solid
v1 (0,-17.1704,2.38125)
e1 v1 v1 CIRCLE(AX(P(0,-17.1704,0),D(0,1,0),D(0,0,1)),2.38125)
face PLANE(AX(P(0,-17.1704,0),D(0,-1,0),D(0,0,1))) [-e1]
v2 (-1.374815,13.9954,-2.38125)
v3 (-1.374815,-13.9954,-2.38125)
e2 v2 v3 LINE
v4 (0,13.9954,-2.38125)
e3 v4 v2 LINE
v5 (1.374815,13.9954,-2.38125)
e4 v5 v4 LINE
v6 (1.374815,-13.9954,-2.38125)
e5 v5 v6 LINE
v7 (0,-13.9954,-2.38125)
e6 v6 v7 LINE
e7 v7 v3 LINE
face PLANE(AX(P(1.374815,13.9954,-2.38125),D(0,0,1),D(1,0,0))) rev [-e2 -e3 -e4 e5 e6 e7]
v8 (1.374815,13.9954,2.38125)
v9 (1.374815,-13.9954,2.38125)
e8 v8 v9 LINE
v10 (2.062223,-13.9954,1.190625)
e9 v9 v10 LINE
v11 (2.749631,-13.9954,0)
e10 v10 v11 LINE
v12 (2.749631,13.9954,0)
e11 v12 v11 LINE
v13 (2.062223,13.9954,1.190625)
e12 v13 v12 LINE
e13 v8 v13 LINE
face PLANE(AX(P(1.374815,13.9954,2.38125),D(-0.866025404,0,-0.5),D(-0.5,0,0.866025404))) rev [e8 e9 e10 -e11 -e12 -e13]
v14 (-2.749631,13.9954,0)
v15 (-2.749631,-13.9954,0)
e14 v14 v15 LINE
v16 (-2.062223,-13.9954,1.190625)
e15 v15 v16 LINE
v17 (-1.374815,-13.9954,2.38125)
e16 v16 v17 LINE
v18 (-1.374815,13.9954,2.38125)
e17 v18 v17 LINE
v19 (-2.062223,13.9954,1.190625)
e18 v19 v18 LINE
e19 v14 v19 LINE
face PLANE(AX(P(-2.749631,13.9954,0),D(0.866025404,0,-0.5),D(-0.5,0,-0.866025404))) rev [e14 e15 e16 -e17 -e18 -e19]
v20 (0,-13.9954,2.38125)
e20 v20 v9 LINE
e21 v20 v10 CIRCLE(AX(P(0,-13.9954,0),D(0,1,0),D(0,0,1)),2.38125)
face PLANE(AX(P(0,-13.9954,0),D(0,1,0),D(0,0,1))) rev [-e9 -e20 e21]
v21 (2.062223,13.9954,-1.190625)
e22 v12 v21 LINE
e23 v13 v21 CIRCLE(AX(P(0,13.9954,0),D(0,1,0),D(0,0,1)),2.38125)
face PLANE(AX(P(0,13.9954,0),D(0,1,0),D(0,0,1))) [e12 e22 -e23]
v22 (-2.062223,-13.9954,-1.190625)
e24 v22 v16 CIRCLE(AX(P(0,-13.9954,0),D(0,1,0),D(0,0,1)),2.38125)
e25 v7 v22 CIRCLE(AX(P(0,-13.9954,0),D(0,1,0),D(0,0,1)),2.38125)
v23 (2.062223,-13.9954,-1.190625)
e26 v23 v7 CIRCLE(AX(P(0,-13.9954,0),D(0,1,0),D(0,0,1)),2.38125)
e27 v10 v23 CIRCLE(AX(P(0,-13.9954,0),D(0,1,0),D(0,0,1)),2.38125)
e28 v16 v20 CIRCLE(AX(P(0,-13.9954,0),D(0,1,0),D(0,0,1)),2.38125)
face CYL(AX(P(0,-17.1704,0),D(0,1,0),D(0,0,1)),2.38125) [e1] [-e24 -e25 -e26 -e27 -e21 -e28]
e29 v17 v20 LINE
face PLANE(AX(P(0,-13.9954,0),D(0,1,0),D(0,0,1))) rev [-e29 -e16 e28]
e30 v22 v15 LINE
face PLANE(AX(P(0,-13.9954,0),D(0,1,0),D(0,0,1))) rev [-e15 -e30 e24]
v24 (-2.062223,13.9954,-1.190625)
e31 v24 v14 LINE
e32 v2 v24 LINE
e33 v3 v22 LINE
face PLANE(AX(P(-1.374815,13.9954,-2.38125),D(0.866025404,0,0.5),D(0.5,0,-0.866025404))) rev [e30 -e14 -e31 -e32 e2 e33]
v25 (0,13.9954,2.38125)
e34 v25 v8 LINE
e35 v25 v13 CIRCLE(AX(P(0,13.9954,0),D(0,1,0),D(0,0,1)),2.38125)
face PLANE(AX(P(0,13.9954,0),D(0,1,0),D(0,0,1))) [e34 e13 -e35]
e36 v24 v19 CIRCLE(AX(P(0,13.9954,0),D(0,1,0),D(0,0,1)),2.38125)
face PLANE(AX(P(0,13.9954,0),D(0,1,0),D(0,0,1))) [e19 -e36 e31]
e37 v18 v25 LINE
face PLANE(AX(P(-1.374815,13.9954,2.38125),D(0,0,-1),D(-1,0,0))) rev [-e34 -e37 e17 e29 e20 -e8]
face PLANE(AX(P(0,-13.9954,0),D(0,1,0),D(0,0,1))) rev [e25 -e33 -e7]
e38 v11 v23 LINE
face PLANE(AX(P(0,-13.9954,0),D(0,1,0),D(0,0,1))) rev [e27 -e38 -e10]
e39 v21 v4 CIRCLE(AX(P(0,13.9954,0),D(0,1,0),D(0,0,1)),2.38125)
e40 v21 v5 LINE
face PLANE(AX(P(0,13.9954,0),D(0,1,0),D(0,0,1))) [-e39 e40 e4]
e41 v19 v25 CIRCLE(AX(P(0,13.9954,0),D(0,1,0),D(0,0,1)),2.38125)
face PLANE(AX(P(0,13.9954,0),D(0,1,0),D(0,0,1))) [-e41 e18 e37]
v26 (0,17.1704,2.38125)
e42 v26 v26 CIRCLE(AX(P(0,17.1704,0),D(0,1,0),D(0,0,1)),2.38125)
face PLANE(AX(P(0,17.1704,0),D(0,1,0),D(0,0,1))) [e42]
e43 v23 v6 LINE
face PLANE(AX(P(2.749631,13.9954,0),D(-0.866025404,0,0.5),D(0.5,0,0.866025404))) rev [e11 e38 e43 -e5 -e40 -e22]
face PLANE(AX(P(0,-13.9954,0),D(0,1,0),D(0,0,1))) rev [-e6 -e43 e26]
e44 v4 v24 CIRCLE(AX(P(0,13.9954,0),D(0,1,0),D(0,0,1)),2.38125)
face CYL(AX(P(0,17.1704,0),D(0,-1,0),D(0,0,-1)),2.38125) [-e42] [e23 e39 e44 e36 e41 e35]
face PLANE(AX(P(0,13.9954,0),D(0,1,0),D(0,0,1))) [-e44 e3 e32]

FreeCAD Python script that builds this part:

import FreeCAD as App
import Part
import Sketcher

V = App.Vector
Q = App.Units.Quantity


def add_polygon(sketch, points):
    """Adds a closed chain of lines whose ends are joined by coincident constraints."""
    first, n = sketch.GeometryCount, len(points)
    for a, b in zip(points, points[1:] + points[:1]):
        sketch.addGeometry(Part.LineSegment(App.Vector(*a, 0), App.Vector(*b, 0)), False)
    for i in range(n):
        sketch.addConstraint(Sketcher.Constraint("Coincident", first + i, 2, first + (i + 1) % n, 1))

doc = App.newDocument("Part")
body = doc.addObject("PartDesign::Body", "Body")

# Sketch on XZ plane
sketch1 = body.newObject("Sketcher::SketchObject", "Sketch")
sketch1.AttachmentSupport = (doc.getObject("XZ_Plane"), [""])
sketch1.MapMode = "FlatFace"
add_polygon(sketch1, [(1.4, 2.4), (2.7, 0), (1.4, -2.4), (-1.4, -2.4), (-2.7, 0), (-1.4, 2.4)])  # lines 0-5
sketch1.addConstraint([
    Sketcher.Constraint("Horizontal", 2),
    Sketcher.Constraint("Horizontal", 5),
    Sketcher.Constraint("Symmetric", 0, 2, 3, 2, -1, 1),
    Sketcher.Constraint("Symmetric", 1, 2, 4, 2, -1, 1),
    Sketcher.Constraint("PointOnObject", 0, 2, -1),
    Sketcher.Constraint("Parallel", 0, 3),
    Sketcher.Constraint("Vertical", 2, 2, 4, 2),
    Sketcher.Constraint("Angle", 0, Q("-60 deg")),
    Sketcher.Constraint("DistanceY", 1, 2, -1, 1, Q("0.09375 in")),
    Sketcher.Constraint("DistanceX", 2, 2, 2, 1, 2.749631),
])
pad1 = body.newObject("PartDesign::Pad", "Pad")
pad1.Profile = sketch1
pad1.Length = Q("1.102 in")
pad1.Midplane = True

# Sketch on XZ plane
sketch2 = body.newObject("Sketcher::SketchObject", "Sketch001")
sketch2.AttachmentSupport = (doc.getObject("XZ_Plane"), [""])
sketch2.MapMode = "FlatFace"
sketch2.AttachmentOffset = App.Placement(V(0, 0, -0.551 * 25.4), App.Rotation())
sketch2.addGeometry(Part.Circle(V(0, 0, 0), V(0, 0, 1), 2.4), False)
sketch2.addConstraint([
    Sketcher.Constraint("Coincident", 0, 3, -1, 1),
    Sketcher.Constraint("Diameter", 0, Q("0.1875 in")),
])
pad2 = body.newObject("PartDesign::Pad", "Pad001")
pad2.Profile = sketch2
pad2.Length = Q("0.125 in")
pad2.Reversed = True
doc.recompute()

mirrored = body.newObject("PartDesign::Mirrored", "Mirrored")
mirrored.Originals = [pad2]
mirrored.MirrorPlane = (doc.getObject("XZ_Plane"), [""])
body.Tip = mirrored

doc.recompute()
